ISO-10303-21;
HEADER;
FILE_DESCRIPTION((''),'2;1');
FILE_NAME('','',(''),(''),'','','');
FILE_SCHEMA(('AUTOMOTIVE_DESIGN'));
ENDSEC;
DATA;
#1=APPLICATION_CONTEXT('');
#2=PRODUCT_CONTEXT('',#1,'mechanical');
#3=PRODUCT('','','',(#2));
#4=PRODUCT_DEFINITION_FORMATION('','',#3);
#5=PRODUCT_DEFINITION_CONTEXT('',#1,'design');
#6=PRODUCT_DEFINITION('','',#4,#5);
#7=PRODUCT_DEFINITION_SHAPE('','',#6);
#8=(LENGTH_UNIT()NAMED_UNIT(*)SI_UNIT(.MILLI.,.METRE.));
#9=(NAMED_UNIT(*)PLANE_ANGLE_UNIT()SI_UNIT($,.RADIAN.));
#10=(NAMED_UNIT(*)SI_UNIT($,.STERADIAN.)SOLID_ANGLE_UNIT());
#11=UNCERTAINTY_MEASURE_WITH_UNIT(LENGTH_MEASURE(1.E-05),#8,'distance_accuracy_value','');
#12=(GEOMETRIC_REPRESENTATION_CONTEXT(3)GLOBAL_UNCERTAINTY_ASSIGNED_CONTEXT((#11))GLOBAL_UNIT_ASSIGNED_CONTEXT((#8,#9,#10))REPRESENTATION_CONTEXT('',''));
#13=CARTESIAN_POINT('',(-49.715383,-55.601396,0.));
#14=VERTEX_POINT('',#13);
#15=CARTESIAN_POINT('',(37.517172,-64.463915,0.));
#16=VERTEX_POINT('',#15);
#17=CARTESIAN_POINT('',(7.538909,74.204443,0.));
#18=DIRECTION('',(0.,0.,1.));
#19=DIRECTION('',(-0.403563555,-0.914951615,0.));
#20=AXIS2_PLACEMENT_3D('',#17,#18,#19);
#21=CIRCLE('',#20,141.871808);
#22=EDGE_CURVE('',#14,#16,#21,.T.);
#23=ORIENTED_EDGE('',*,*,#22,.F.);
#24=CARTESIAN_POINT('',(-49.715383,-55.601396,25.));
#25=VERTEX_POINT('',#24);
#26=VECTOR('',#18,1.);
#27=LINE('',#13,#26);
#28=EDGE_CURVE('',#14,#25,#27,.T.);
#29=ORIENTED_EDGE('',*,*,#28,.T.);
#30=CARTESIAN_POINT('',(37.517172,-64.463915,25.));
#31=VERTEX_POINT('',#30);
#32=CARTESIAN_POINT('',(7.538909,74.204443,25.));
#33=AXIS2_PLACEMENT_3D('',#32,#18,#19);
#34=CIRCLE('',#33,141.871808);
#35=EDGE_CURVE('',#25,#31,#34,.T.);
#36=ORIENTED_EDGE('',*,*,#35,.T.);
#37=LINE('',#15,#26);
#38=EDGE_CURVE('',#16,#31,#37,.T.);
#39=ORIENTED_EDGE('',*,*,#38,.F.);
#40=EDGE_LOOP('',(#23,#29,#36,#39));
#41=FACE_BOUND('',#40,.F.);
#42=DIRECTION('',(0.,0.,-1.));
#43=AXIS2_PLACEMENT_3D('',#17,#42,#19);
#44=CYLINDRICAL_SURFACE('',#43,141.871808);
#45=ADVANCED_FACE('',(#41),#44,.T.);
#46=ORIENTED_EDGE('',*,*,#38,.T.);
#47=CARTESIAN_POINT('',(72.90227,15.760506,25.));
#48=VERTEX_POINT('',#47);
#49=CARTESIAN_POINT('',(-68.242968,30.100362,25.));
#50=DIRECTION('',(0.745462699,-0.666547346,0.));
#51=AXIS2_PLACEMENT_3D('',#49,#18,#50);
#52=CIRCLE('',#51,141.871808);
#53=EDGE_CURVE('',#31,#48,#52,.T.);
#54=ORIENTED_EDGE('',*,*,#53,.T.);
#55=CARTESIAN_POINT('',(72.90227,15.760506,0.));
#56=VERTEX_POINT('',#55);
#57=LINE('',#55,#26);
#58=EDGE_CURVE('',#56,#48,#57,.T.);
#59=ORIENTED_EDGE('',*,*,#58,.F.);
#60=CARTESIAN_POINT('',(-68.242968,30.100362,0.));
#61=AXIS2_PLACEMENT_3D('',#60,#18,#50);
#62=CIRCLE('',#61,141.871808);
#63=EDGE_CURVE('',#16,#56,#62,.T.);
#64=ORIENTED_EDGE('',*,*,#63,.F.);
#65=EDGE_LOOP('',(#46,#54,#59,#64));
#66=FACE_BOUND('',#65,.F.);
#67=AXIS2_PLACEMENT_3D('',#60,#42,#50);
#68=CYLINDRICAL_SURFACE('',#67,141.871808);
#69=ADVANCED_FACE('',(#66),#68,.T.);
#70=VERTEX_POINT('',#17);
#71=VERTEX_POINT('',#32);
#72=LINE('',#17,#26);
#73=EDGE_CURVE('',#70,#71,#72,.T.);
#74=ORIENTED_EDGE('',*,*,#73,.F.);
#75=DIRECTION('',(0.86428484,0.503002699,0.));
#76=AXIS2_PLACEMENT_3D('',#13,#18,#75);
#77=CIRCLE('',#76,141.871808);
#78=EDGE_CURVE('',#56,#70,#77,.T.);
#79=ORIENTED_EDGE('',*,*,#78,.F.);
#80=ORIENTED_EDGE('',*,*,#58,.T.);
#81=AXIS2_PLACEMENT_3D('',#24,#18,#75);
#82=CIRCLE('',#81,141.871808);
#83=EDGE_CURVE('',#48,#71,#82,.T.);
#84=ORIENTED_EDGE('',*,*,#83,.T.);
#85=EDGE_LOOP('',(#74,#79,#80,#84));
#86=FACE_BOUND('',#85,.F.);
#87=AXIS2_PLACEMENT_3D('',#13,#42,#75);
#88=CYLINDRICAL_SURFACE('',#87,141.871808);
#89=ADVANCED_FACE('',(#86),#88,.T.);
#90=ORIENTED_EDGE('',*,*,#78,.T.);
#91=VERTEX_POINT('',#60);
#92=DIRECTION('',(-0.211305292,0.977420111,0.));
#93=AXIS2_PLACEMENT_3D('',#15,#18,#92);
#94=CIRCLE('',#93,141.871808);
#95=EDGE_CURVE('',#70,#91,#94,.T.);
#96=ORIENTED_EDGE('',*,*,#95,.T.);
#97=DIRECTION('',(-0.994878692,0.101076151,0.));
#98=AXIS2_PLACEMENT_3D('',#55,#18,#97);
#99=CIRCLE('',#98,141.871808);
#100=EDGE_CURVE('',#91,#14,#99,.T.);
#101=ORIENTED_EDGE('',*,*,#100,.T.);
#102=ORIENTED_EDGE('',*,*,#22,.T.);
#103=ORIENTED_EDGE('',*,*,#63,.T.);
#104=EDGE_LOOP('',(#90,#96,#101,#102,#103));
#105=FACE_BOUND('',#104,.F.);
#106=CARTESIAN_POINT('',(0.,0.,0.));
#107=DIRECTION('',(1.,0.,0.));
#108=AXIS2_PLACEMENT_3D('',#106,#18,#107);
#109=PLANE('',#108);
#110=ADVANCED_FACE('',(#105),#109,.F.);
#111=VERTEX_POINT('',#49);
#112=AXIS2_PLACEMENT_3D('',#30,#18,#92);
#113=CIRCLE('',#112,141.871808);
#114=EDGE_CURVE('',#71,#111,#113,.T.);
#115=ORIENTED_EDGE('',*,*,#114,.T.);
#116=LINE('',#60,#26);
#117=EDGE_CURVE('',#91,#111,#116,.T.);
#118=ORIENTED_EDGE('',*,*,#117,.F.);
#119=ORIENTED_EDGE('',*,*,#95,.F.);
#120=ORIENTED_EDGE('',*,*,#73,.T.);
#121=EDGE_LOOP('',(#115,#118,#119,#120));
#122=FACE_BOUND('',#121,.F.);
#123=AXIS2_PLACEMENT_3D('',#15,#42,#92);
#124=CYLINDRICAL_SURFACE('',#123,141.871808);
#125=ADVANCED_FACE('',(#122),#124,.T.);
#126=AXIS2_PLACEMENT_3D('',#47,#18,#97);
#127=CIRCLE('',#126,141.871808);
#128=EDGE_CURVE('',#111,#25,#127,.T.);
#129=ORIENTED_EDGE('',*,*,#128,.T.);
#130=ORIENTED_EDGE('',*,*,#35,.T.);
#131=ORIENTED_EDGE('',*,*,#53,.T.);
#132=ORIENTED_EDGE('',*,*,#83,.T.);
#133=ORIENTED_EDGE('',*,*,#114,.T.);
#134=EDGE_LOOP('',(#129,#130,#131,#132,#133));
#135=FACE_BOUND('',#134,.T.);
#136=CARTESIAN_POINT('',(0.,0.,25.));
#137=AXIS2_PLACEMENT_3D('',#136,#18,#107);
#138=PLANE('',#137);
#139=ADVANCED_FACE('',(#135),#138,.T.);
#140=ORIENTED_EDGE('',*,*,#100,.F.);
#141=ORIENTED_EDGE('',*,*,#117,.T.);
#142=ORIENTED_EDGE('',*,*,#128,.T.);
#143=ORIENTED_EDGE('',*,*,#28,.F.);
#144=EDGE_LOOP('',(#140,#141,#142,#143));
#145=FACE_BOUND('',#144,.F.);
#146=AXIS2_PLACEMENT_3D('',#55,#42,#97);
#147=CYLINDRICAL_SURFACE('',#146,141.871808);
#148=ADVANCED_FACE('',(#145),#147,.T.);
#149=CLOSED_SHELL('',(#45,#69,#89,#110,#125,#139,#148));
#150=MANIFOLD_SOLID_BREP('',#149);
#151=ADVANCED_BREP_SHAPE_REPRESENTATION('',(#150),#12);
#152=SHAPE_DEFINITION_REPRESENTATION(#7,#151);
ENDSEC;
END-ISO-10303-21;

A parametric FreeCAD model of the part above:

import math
import FreeCAD as App
import Part
import Sketcher

V = App.Vector
Q = App.Units.Quantity

doc = App.newDocument("Part")
params = doc.addObject("Spreadsheet::Sheet", "Params")
for row, (alias, value) in enumerate([
    ("pad1_length", "25 mm"),
], start=1):
    params.set(f"A{row}", alias)
    params.set(f"B{row}", "=" + value)
    params.setAlias(f"B{row}", alias)

body = doc.addObject("PartDesign::Body", "Body")

# Sketch on XY plane
sketch1 = body.newObject("Sketcher::SketchObject", "Sketch")
sketch1.AttachmentSupport = (doc.getObject("XY_Plane"), [""])
sketch1.MapMode = "FlatFace"
sketch1.addGeometry([
    Part.ArcOfCircle(Part.Circle(V(8, 74, 0), V(0, 0, 1), 142), math.radians(-114), math.radians(-78)),  # 0
    Part.ArcOfCircle(Part.Circle(V(-68, 30, 0), V(0, 0, 1), 142), math.radians(-42), math.radians(-6)),  # 1
    Part.ArcOfCircle(Part.Circle(V(-50, -56, 0), V(0, 0, 1), 142), math.radians(30), math.radians(66)),  # 2
    Part.ArcOfCircle(Part.Circle(V(38, -64, 0), V(0, 0, 1), 142), math.radians(102), math.radians(138)),  # 3
    Part.ArcOfCircle(Part.Circle(V(73, 16, 0), V(0, 0, 1), 142), math.radians(174), math.radians(210)),  # 4
], False)
sketch1.addConstraint([
    Sketcher.Constraint("Coincident", 0, 2, 1, 1),
    Sketcher.Constraint("Coincident", 1, 2, 2, 1),
    Sketcher.Constraint("Coincident", 2, 2, 3, 1),
    Sketcher.Constraint("Coincident", 3, 2, 4, 1),
    Sketcher.Constraint("Coincident", 4, 2, 0, 1),
    Sketcher.Constraint("Coincident", 0, 2, 3, 3),
    Sketcher.Constraint("Coincident", 1, 2, 4, 3),
    Sketcher.Constraint("Coincident", 2, 2, 0, 3),
    Sketcher.Constraint("Coincident", 3, 2, 1, 3),
    Sketcher.Constraint("Equal", 1, 2),
    Sketcher.Constraint("Radius", 0, Q("141.871808 mm")),
    Sketcher.Constraint("DistanceX", -1, 1, 0, 3, Q("7.538909 mm")),
    Sketcher.Constraint("DistanceX", 1, 3, -1, 1, Q("68.242968 mm")),
    Sketcher.Constraint("DistanceX", -1, 1, 4, 3, Q("72.90227 mm")),
    Sketcher.Constraint("DistanceY", 1, 3, 0, 3, Q("44.104081 mm")),
    Sketcher.Constraint("DistanceY", -1, 1, 0, 3, Q("74.204443 mm")),
])
pad1 = body.newObject("PartDesign::Pad", "Pad")
pad1.Profile = sketch1
pad1.setExpression("Length", "Params.pad1_length")

doc.recompute()
